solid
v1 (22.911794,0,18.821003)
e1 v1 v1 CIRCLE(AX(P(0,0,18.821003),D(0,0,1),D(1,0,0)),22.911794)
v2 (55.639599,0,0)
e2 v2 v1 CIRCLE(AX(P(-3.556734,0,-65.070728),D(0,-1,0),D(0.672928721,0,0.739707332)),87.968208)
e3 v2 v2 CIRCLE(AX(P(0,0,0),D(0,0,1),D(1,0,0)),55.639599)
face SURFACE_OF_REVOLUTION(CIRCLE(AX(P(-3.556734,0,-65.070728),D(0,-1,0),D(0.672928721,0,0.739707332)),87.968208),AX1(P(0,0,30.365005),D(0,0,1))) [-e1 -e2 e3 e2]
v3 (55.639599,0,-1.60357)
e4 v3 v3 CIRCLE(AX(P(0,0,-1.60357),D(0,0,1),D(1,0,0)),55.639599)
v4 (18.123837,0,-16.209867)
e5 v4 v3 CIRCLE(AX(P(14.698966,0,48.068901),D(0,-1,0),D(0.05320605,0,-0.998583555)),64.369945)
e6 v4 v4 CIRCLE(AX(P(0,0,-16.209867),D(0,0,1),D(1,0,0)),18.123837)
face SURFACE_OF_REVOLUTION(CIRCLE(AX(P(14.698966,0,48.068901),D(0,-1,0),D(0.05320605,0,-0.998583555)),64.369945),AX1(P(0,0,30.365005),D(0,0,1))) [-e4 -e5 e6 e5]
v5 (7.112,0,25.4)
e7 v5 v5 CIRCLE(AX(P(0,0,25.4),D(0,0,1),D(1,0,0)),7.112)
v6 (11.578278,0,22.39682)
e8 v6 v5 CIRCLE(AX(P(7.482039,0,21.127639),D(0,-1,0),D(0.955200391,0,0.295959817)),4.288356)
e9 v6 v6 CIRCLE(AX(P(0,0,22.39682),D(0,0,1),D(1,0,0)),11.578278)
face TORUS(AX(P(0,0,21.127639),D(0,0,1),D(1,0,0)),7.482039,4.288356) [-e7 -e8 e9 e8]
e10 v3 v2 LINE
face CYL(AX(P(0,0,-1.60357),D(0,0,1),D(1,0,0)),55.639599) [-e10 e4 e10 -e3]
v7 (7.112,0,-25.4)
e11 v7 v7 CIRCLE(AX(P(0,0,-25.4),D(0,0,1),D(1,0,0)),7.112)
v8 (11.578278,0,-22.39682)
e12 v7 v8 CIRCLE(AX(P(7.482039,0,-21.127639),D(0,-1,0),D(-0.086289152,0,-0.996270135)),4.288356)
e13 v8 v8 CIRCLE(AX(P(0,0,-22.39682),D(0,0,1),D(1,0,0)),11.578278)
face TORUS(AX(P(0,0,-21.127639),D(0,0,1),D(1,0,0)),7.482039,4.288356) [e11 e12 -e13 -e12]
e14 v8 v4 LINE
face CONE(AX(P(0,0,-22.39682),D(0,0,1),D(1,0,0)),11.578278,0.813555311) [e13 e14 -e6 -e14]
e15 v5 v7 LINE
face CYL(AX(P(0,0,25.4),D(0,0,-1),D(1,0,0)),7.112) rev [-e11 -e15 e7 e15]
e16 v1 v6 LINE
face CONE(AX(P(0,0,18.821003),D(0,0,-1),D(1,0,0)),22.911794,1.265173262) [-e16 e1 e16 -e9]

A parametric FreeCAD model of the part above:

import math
import FreeCAD as App
import Part
import Sketcher
from FreeCAD import Vector
Q = App.Units.Quantity

doc = App.newDocument("Part")
body = doc.addObject("PartDesign::Body", "Body")

# Sketch on XZ plane
sketch1 = doc.addObject("Sketcher::SketchObject", "Sketch")
body.addObject(sketch1)
sketch1.AttachmentSupport = (doc.XZ_Plane, [""])
sketch1.MapMode = "FlatFace"
sketch1.addGeometry([
    Part.LineSegment(Vector(7.1, 25.4, 0), Vector(7.1, -25.4, 0)),  # 0
    Part.ArcOfCircle(Part.Circle(Vector(7.5, -21.1, 0), Vector(0, 0, 1), 4.3), math.radians(-95), math.radians(-17)),  # 1
    Part.LineSegment(Vector(11.6, -22.4, 0), Vector(18.1, -16.2, 0)),  # 2
    Part.ArcOfCircle(Part.Circle(Vector(14.7, 48.1, 0), Vector(0, 0, 1), 64.4), math.radians(-87), math.radians(-51)),  # 3
    Part.LineSegment(Vector(55.6, -1.6, 0), Vector(55.6, 0, 0)),  # 4
    Part.ArcOfCircle(Part.Circle(Vector(-3.6, -65.1, 0), Vector(0, 0, 1), 88), math.radians(48), math.radians(72)),  # 5
    Part.LineSegment(Vector(22.9, 18.8, 0), Vector(11.6, 22.4, 0)),  # 6
    Part.ArcOfCircle(Part.Circle(Vector(7.5, 21.1, 0), Vector(0, 0, 1), 4.3), math.radians(17), math.radians(95)),  # 7
], False)
sketch1.addConstraint([
    Sketcher.Constraint("Coincident", 0, 2, 1, 1),
    Sketcher.Constraint("Coincident", 1, 2, 2, 1),
    Sketcher.Constraint("Coincident", 2, 2, 3, 1),
    Sketcher.Constraint("Coincident", 3, 2, 4, 1),
    Sketcher.Constraint("Coincident", 4, 2, 5, 1),
    Sketcher.Constraint("Tangent", 5, 2, 6, 1),
    Sketcher.Constraint("Coincident", 6, 2, 7, 1),
    Sketcher.Constraint("Coincident", 7, 2, 0, 1),
    Sketcher.Constraint("Vertical", 0),
    Sketcher.Constraint("Vertical", 4),
    Sketcher.Constraint("Equal", 1, 7),
    Sketcher.Constraint("Symmetric", 1, 3, 7, 3, -1),
    Sketcher.Constraint("PointOnObject", 4, 2, -1),
    Sketcher.Constraint("Vertical", 1, 2, 6, 2),
    Sketcher.Constraint("DistanceY", 0, 2, 0, 1, Q("2 in")),
    Sketcher.Constraint("DistanceX", -1, 1, 0, 2, Q("0.28 in")),
    Sketcher.Constraint("Radius", 1, 4.288356),
    Sketcher.Constraint("Radius", 3, 64.369945),
    Sketcher.Constraint("Radius", 5, 87.968208),
    Sketcher.Constraint("DistanceY", 4, 1, 4, 2, 1.60357),
    Sketcher.Constraint("DistanceY", -1, 1, 3, 3, 48.068901),
    Sketcher.Constraint("DistanceX", -1, 1, 3, 2, 55.639599),
    Sketcher.Constraint("DistanceX", 5, 3, 3, 3, 18.255701),
    Sketcher.Constraint("DistanceX", 1, 3, 2, 2, 10.641798),
    Sketcher.Constraint("DistanceY", 5, 2, 3, 3, 29.247898),
    Sketcher.Constraint("DistanceX", -1, 1, 1, 3, 7.482039),
])
revolution = doc.addObject("PartDesign::Revolution", "Revolution")
body.addObject(revolution)
revolution.Profile = sketch1
revolution.ReferenceAxis = (sketch1, ["V_Axis"])
revolution.Angle = 360

doc.recompute()
